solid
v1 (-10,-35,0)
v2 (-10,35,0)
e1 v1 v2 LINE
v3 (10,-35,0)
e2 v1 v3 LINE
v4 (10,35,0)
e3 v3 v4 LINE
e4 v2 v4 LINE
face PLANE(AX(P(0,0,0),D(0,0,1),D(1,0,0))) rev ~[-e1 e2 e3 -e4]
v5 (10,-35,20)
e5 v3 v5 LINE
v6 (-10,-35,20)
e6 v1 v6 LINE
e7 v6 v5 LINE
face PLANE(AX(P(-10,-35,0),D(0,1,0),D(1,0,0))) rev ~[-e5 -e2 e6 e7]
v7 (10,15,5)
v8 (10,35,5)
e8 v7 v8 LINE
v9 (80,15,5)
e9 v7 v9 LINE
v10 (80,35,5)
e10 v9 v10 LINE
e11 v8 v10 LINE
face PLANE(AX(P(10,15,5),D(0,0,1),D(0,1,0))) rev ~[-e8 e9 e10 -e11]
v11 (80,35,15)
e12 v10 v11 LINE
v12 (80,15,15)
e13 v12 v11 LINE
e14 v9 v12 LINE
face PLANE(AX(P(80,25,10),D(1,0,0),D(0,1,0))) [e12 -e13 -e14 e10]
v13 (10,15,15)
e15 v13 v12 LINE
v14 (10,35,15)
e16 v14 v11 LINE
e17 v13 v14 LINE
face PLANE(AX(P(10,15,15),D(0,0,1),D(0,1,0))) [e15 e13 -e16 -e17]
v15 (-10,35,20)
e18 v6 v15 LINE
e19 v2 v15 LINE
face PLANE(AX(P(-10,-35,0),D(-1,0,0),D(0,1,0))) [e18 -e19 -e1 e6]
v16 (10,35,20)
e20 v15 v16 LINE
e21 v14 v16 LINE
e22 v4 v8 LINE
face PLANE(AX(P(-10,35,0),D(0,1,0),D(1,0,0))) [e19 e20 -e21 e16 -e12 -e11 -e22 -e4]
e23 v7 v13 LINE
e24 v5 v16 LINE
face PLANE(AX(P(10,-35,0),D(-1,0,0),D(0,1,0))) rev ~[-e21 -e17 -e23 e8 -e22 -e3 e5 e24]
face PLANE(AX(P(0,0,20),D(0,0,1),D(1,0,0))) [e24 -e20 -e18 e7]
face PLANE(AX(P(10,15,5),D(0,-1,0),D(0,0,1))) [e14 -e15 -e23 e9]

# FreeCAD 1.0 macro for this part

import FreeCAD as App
import Part
import Sketcher
Q = App.Units.Quantity

doc = App.newDocument("Part")
body = doc.addObject("PartDesign::Body", "Body")

sketch1 = body.newObject("Sketcher::SketchObject", "Sketch")
sketch1.AttachmentSupport = (doc.getObject("XY_Plane"), [""])
sketch1.MapMode = "FlatFace"
sketch1.addGeometry(Part.LineSegment(App.Vector(-10, 35, 0), App.Vector(-10, -35, 0)), False)
sketch1.addGeometry(Part.LineSegment(App.Vector(-10, -35, 0), App.Vector(10, -35, 0)), False)
sketch1.addGeometry(Part.LineSegment(App.Vector(10, -35, 0), App.Vector(10, 35, 0)), False)
sketch1.addGeometry(Part.LineSegment(App.Vector(10, 35, 0), App.Vector(-10, 35, 0)), False)
sketch1.addConstraint(Sketcher.Constraint("Coincident", 0, 2, 1, 1))
sketch1.addConstraint(Sketcher.Constraint("Coincident", 1, 2, 2, 1))
sketch1.addConstraint(Sketcher.Constraint("Coincident", 2, 2, 3, 1))
sketch1.addConstraint(Sketcher.Constraint("Coincident", 3, 2, 0, 1))
sketch1.addConstraint(Sketcher.Constraint("Vertical", 0))
sketch1.addConstraint(Sketcher.Constraint("Horizontal", 1))
sketch1.addConstraint(Sketcher.Constraint("Vertical", 2))
sketch1.addConstraint(Sketcher.Constraint("Horizontal", 3))
sketch1.addConstraint(Sketcher.Constraint("Symmetric", 0, 2, 2, 2, -1, 1))
sketch1.addConstraint(Sketcher.Constraint("DistanceX", 1, 1, 1, 2, Q("20 mm")))
sketch1.addConstraint(Sketcher.Constraint("DistanceY", 0, 2, 0, 1, Q("70 mm")))
pad1 = body.newObject("PartDesign::Pad", "Pad")
pad1.Profile = sketch1
pad1.Length = 20

sketch2 = body.newObject("Sketcher::SketchObject", "Sketch001")
sketch2.AttachmentSupport = (doc.getObject("YZ_Plane"), [""])
sketch2.MapMode = "FlatFace"
sketch2.AttachmentOffset = App.Placement(App.Vector(0, 0, 10), App.Rotation())
sketch2.addGeometry(Part.LineSegment(App.Vector(15, 15, 0), App.Vector(15, 5, 0)), False)
sketch2.addGeometry(Part.LineSegment(App.Vector(15, 5, 0), App.Vector(35, 5, 0)), False)
sketch2.addGeometry(Part.LineSegment(App.Vector(35, 5, 0), App.Vector(35, 15, 0)), False)
sketch2.addGeometry(Part.LineSegment(App.Vector(35, 15, 0), App.Vector(15, 15, 0)), False)
sketch2.addConstraint(Sketcher.Constraint("Coincident", 0, 2, 1, 1))
sketch2.addConstraint(Sketcher.Constraint("Coincident", 1, 2, 2, 1))
sketch2.addConstraint(Sketcher.Constraint("Coincident", 2, 2, 3, 1))
sketch2.addConstraint(Sketcher.Constraint("Coincident", 3, 2, 0, 1))
sketch2.addConstraint(Sketcher.Constraint("Vertical", 0))
sketch2.addConstraint(Sketcher.Constraint("Horizontal", 1))
sketch2.addConstraint(Sketcher.Constraint("Vertical", 2))
sketch2.addConstraint(Sketcher.Constraint("Horizontal", 3))
sketch2.addConstraint(Sketcher.Constraint("DistanceX", 1, 1, 1, 2, Q("20 mm")))
sketch2.addConstraint(Sketcher.Constraint("DistanceY", 0, 2, 0, 1, Q("10 mm")))
sketch2.addConstraint(Sketcher.Constraint("DistanceX", -1, 1, 0, 2, Q("15 mm")))
sketch2.addConstraint(Sketcher.Constraint("DistanceY", -1, 1, 0, 2, Q("5 mm")))
pad2 = body.newObject("PartDesign::Pad", "Pad001")
pad2.Profile = sketch2
pad2.Length = 70

doc.recompute()
